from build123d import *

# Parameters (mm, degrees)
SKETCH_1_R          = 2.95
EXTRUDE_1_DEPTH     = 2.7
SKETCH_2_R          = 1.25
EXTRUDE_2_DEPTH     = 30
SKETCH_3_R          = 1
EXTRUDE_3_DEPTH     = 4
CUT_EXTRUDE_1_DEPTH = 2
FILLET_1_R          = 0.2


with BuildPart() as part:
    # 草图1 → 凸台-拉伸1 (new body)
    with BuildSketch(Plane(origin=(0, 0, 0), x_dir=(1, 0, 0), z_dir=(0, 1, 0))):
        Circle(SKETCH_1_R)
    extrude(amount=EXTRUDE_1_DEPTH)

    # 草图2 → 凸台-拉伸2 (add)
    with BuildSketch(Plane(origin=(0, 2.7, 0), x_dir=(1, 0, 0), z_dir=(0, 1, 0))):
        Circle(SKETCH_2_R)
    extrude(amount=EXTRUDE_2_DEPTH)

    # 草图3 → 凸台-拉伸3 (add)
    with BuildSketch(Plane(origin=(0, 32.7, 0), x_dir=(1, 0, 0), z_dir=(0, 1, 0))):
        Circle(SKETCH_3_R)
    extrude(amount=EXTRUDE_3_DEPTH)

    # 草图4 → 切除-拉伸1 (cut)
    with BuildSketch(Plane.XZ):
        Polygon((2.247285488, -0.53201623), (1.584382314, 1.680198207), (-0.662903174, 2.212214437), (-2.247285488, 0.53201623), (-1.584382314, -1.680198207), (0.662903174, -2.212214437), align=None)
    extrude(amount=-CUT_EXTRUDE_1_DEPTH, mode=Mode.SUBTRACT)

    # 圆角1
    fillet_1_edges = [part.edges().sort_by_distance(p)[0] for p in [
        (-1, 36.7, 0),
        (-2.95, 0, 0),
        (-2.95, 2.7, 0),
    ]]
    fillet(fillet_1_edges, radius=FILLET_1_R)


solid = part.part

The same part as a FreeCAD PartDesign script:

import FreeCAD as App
import Part
import Sketcher


def edges_at(feature, points):
    """Names of the edges that pass closest to the given points."""
    edges = feature.Shape.Edges
    near = lambda p: min(range(len(edges)), key=lambda i: edges[i].distToShape(Part.Vertex(*p))[0])
    return sorted({f"Edge{near(p) + 1}" for p in points})


def add_polygon(sketch, points):
    """Adds a closed chain of lines whose ends are joined by coincident constraints."""
    first, n = sketch.GeometryCount, len(points)
    for a, b in zip(points, points[1:] + points[:1]):
        sketch.addGeometry(Part.LineSegment(App.Vector(*a, 0), App.Vector(*b, 0)), False)
    for i in range(n):
        sketch.addConstraint(Sketcher.Constraint("Coincident", first + i, 2, first + (i + 1) % n, 1))

doc = App.newDocument("Part")
body = doc.addObject("PartDesign::Body", "Body")

# Sketch on XZ plane
sketch1 = doc.addObject("Sketcher::SketchObject", "Sketch")
body.addObject(sketch1)
sketch1.AttachmentSupport = (doc.XZ_Plane, [""])
sketch1.MapMode = "FlatFace"
sketch1.addGeometry(Part.Circle(App.Vector(0, 0, 0), App.Vector(0, 0, 1), 3), False)
sketch1.addConstraint([
    Sketcher.Constraint("Coincident", 0, 3, -1, 1),
    Sketcher.Constraint("Diameter", 0, 5.9),
])
pad1 = doc.addObject("PartDesign::Pad", "Pad")
body.addObject(pad1)
pad1.Profile = sketch1
pad1.Length = 2.7
pad1.Reversed = True

# Sketch on XZ plane
sketch2 = doc.addObject("Sketcher::SketchObject", "Sketch001")
body.addObject(sketch2)
sketch2.AttachmentSupport = (doc.XZ_Plane, [""])
sketch2.MapMode = "FlatFace"
sketch2.AttachmentOffset = App.Placement(App.Vector(0, 0, -2.7), App.Rotation())
sketch2.addGeometry(Part.Circle(App.Vector(0, 0, 0), App.Vector(0, 0, 1), 1.2), False)
sketch2.addConstraint([
    Sketcher.Constraint("Coincident", 0, 3, -1, 1),
    Sketcher.Constraint("Diameter", 0, 2.5),
])
pad2 = doc.addObject("PartDesign::Pad", "Pad001")
body.addObject(pad2)
pad2.Profile = sketch2
pad2.Length = 30
pad2.Reversed = True

# Sketch on XZ plane
sketch3 = doc.addObject("Sketcher::SketchObject", "Sketch002")
body.addObject(sketch3)
sketch3.AttachmentSupport = (doc.XZ_Plane, [""])
sketch3.MapMode = "FlatFace"
sketch3.AttachmentOffset = App.Placement(App.Vector(0, 0, -32.7), App.Rotation())
sketch3.addGeometry(Part.Circle(App.Vector(0, 0, 0), App.Vector(0, 0, 1), 1), False)
sketch3.addConstraint([
    Sketcher.Constraint("Coincident", 0, 3, -1, 1),
    Sketcher.Constraint("Diameter", 0, 2.0),
])
pad3 = doc.addObject("PartDesign::Pad", "Pad002")
body.addObject(pad3)
pad3.Profile = sketch3
pad3.Length = 4
pad3.Reversed = True

# Sketch on XZ plane
sketch4 = doc.addObject("Sketcher::SketchObject", "Sketch003")
body.addObject(sketch4)
sketch4.AttachmentSupport = (doc.XZ_Plane, [""])
sketch4.MapMode = "FlatFace"
add_polygon(sketch4, [(2.2, -0.5), (1.6, 1.7), (-0.7, 2.2), (-2.2, 0.5), (-1.6, -1.7), (0.7, -2.2)])  # lines 0-5
sketch4.addConstraint([
    Sketcher.Constraint("Symmetric", 0, 2, 3, 2, -1, 1),
    Sketcher.Constraint("Symmetric", 1, 2, 4, 2, -1, 1),
    Sketcher.Constraint("Symmetric", 2, 2, 5, 2, -1, 1),
    Sketcher.Constraint("Equal", 0, 1),
    Sketcher.Constraint("Equal", 1, 2),
    Sketcher.Constraint("Distance", 0, 2.309401),
    Sketcher.Constraint("DistanceY", -1, 1, 0, 2, 1.680198),
    Sketcher.Constraint("DistanceY", 2, 2, 1, 2, 1.680198),
    Sketcher.Constraint("DistanceY", 2, 2, 0, 2, 1.148182),
])
pocket1 = doc.addObject("PartDesign::Pocket", "Pocket")
body.addObject(pocket1)
pocket1.Profile = sketch4
pocket1.Length = 2
doc.recompute()

fillet = doc.addObject("PartDesign::Fillet", "Fillet")
body.addObject(fillet)
fillet.Base = (pocket1, edges_at(pocket1, [(-1, 36.7, 0), (-2.95, 0, 0), (-2.95, 2.7, 0)]))
fillet.Radius = 0.2

doc.recompute()
